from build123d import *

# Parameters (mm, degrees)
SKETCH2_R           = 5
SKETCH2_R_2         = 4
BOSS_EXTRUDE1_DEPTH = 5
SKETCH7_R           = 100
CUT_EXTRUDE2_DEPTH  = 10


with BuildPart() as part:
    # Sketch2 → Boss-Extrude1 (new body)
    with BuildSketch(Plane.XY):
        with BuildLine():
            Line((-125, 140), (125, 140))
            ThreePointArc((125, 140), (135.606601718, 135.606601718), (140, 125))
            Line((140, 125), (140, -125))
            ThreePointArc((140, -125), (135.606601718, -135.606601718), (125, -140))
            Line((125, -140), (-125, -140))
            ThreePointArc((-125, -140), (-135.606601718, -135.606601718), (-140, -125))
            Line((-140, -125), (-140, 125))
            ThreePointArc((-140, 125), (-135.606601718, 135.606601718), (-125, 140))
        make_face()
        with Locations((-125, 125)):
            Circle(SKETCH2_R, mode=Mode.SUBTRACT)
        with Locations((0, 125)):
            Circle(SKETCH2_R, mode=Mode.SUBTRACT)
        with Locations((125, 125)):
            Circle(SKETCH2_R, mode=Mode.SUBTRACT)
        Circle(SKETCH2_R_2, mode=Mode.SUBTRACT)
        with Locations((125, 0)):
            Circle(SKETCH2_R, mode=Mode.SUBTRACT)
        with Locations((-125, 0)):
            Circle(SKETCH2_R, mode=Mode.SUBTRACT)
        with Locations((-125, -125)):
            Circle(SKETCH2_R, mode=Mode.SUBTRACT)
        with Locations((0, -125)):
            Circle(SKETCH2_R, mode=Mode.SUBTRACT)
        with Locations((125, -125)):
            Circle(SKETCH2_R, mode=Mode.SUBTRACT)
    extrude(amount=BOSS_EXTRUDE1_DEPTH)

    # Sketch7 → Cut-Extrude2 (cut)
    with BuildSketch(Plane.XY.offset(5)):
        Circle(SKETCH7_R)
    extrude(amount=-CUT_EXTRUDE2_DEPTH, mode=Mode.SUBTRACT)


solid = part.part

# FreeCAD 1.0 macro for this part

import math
import FreeCAD as App
import Part
import Sketcher

V = App.Vector

doc = App.newDocument("Part")
body = doc.addObject("PartDesign::Body", "Body")

# Sketch on XY plane
sketch1 = body.newObject("Sketcher::SketchObject", "Sketch")
sketch1.AttachmentSupport = (doc.getObject("XY_Plane"), [""])
sketch1.MapMode = "FlatFace"
sketch1.addGeometry([
    Part.LineSegment(V(125, 140, 0), V(-125, 140, 0)),  # 0
    Part.ArcOfCircle(Part.Circle(V(-125, 125, 0), V(0, 0, 1), 15), math.radians(90), math.radians(180)),  # 1
    Part.LineSegment(V(-140, 125, 0), V(-140, -125, 0)),  # 2
    Part.ArcOfCircle(Part.Circle(V(-125, -125, 0), V(0, 0, 1), 15), math.radians(180), math.radians(270)),  # 3
    Part.LineSegment(V(-125, -140, 0), V(125, -140, 0)),  # 4
    Part.ArcOfCircle(Part.Circle(V(125, -125, 0), V(0, 0, 1), 15), math.radians(-90), math.radians(0)),  # 5
    Part.LineSegment(V(140, -125, 0), V(140, 125, 0)),  # 6
    Part.ArcOfCircle(Part.Circle(V(125, 125, 0), V(0, 0, 1), 15), math.radians(0), math.radians(90)),  # 7
    Part.Circle(V(125, -125, 0), V(0, 0, 1), 5),  # 8
    Part.Circle(V(0, -125, 0), V(0, 0, 1), 5),  # 9
    Part.Circle(V(-125, -125, 0), V(0, 0, 1), 5),  # 10
    Part.Circle(V(125, 0, 0), V(0, 0, 1), 5),  # 11
    Part.Circle(V(125, 125, 0), V(0, 0, 1), 5),  # 12
    Part.Circle(V(0, 0, 0), V(0, 0, 1), 4),  # 13
    Part.Circle(V(-125, 0, 0), V(0, 0, 1), 5),  # 14
    Part.Circle(V(0, 125, 0), V(0, 0, 1), 5),  # 15
    Part.Circle(V(-125, 125, 0), V(0, 0, 1), 5),  # 16
], False)
sketch1.addConstraint([
    Sketcher.Constraint("Tangent", 0, 2, 1, 1),
    Sketcher.Constraint("Tangent", 1, 2, 2, 1),
    Sketcher.Constraint("Tangent", 2, 2, 3, 1),
    Sketcher.Constraint("Tangent", 3, 2, 4, 1),
    Sketcher.Constraint("Tangent", 4, 2, 5, 1),
    Sketcher.Constraint("Tangent", 5, 2, 6, 1),
    Sketcher.Constraint("Tangent", 6, 2, 7, 1),
    Sketcher.Constraint("Tangent", 7, 2, 0, 1),
    Sketcher.Constraint("Horizontal", 0),
    Sketcher.Constraint("Vertical", 2),
    Sketcher.Constraint("Horizontal", 4),
    Sketcher.Constraint("Vertical", 6),
    Sketcher.Constraint("Coincident", 13, 3, -1, 1),
    Sketcher.Constraint("Coincident", 8, 3, 5, 3),
    Sketcher.Constraint("Coincident", 10, 3, 3, 3),
    Sketcher.Constraint("Coincident", 12, 3, 7, 3),
    Sketcher.Constraint("Coincident", 16, 3, 1, 3),
    Sketcher.Constraint("Equal", 1, 3),
    Sketcher.Constraint("Equal", 3, 5),
    Sketcher.Constraint("Equal", 5, 7),
    Sketcher.Constraint("Equal", 8, 9),
    Sketcher.Constraint("Equal", 9, 10),
    Sketcher.Constraint("Equal", 10, 11),
    Sketcher.Constraint("Equal", 11, 12),
    Sketcher.Constraint("Equal", 12, 14),
    Sketcher.Constraint("Equal", 14, 15),
    Sketcher.Constraint("Equal", 15, 16),
    Sketcher.Constraint("Symmetric", 1, 3, 5, 3, -1, 1),
    Sketcher.Constraint("Symmetric", 11, 3, 14, 3, -1, 1),
    Sketcher.Constraint("Symmetric", 9, 3, 15, 3, -1, 1),
    Sketcher.Constraint("PointOnObject", 9, 3, -2),
    Sketcher.Constraint("PointOnObject", 11, 3, -1),
    Sketcher.Constraint("Horizontal", 8, 3, 9, 3),
    Sketcher.Constraint("Vertical", 8, 3, 11, 3),
    Sketcher.Constraint("Equal", 4, 2),
    Sketcher.Constraint("Diameter", 8, 10.0),
    Sketcher.Constraint("Diameter", 13, 8.0),
    Sketcher.Constraint("Radius", 1, 15.0),
    Sketcher.Constraint("DistanceX", 0, 2, 0, 1, 250.0),
])
pad1 = body.newObject("PartDesign::Pad", "Pad")
pad1.Profile = sketch1
pad1.Length = 5

# Sketch on XY plane
sketch2 = body.newObject("Sketcher::SketchObject", "Sketch001")
sketch2.AttachmentSupport = (doc.getObject("XY_Plane"), [""])
sketch2.MapMode = "FlatFace"
sketch2.AttachmentOffset = App.Placement(V(0, 0, 5), App.Rotation())
sketch2.addGeometry(Part.Circle(V(0, 0, 0), V(0, 0, 1), 100), False)
sketch2.addConstraint([
    Sketcher.Constraint("Coincident", 0, 3, -1, 1),
    Sketcher.Constraint("Diameter", 0, 200.0),
])
pocket1 = body.newObject("PartDesign::Pocket", "Pocket")
pocket1.Profile = sketch2
pocket1.Length = 10

doc.recompute()
